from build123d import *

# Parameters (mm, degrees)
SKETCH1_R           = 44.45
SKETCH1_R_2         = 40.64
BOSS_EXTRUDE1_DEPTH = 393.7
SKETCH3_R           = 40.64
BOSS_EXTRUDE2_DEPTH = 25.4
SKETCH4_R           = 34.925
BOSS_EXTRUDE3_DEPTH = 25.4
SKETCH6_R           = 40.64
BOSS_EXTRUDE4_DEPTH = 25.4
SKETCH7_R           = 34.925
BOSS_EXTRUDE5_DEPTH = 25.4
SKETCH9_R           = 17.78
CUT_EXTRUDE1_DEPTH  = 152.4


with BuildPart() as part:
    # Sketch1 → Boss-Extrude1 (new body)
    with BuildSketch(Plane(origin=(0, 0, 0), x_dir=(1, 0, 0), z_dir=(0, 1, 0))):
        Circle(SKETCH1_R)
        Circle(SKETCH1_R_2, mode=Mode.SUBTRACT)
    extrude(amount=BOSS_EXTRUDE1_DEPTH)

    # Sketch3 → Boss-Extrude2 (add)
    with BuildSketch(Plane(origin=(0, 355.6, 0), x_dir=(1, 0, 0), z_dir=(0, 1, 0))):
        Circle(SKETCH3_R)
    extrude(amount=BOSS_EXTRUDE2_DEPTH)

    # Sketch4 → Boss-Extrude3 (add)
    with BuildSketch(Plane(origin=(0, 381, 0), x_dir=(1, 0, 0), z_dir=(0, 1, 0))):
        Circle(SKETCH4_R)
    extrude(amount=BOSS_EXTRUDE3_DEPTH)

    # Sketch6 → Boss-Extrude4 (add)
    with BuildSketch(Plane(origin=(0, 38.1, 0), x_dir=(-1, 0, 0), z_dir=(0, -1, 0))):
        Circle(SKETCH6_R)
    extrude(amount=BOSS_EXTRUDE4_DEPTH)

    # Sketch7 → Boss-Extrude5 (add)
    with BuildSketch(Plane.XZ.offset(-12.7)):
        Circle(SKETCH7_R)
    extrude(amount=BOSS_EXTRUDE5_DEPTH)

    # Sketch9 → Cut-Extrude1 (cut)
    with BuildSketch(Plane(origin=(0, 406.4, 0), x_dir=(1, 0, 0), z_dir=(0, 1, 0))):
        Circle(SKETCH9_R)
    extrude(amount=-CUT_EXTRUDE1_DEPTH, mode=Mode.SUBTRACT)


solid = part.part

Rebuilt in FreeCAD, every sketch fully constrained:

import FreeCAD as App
import Part
import Sketcher

V = App.Vector
Q = App.Units.Quantity

doc = App.newDocument("Part")
body = doc.addObject("PartDesign::Body", "Body")

# Sketch on XZ plane
sketch1 = doc.addObject("Sketcher::SketchObject", "Sketch")
body.addObject(sketch1)
sketch1.AttachmentSupport = (doc.XZ_Plane, [""])
sketch1.MapMode = "FlatFace"
sketch1.addGeometry([
    Part.Circle(V(0, 0, 0), V(0, 0, 1), 44),
    Part.Circle(V(0, 0, 0), V(0, 0, 1), 41),
], False)
sketch1.addConstraint([
    Sketcher.Constraint("Coincident", 0, 3, -1, 1),
    Sketcher.Constraint("Coincident", 1, 3, -1, 1),
    Sketcher.Constraint("Diameter", 0, Q("3.5 in")),
    Sketcher.Constraint("Diameter", 1, Q("3.2 in")),
])
pad1 = doc.addObject("PartDesign::Pad", "Pad")
body.addObject(pad1)
pad1.Profile = sketch1
pad1.Length = Q("15.5 in")
pad1.Reversed = True

# Sketch on XZ plane
sketch2 = doc.addObject("Sketcher::SketchObject", "Sketch001")
body.addObject(sketch2)
sketch2.AttachmentSupport = (doc.XZ_Plane, [""])
sketch2.MapMode = "FlatFace"
sketch2.AttachmentOffset = App.Placement(V(0, 0, -14 * 25.4), App.Rotation())
sketch2.addGeometry(Part.Circle(V(0, 0, 0), V(0, 0, 1), 41), False)
sketch2.addConstraint([
    Sketcher.Constraint("Coincident", 0, 3, -1, 1),
    Sketcher.Constraint("Diameter", 0, Q("3.2 in")),
])
pad2 = doc.addObject("PartDesign::Pad", "Pad001")
body.addObject(pad2)
pad2.Profile = sketch2
pad2.Length = Q("1 in")
pad2.Reversed = True

# Sketch on XZ plane
sketch3 = doc.addObject("Sketcher::SketchObject", "Sketch002")
body.addObject(sketch3)
sketch3.AttachmentSupport = (doc.XZ_Plane, [""])
sketch3.MapMode = "FlatFace"
sketch3.AttachmentOffset = App.Placement(V(0, 0, -15 * 25.4), App.Rotation())
sketch3.addGeometry(Part.Circle(V(0, 0, 0), V(0, 0, 1), 35), False)
sketch3.addConstraint([
    Sketcher.Constraint("Coincident", 0, 3, -1, 1),
    Sketcher.Constraint("Diameter", 0, Q("2.75 in")),
])
pad3 = doc.addObject("PartDesign::Pad", "Pad002")
body.addObject(pad3)
pad3.Profile = sketch3
pad3.Length = Q("1 in")
pad3.Reversed = True

# Sketch on XZ plane
sketch4 = doc.addObject("Sketcher::SketchObject", "Sketch003")
body.addObject(sketch4)
sketch4.AttachmentSupport = (doc.XZ_Plane, [""])
sketch4.MapMode = "FlatFace"
sketch4.AttachmentOffset = App.Placement(V(0, 0, -1.5 * 25.4), App.Rotation())
sketch4.addGeometry(Part.Circle(V(0, 0, 0), V(0, 0, 1), 41), False)
sketch4.addConstraint([
    Sketcher.Constraint("Coincident", 0, 3, -1, 1),
    Sketcher.Constraint("Diameter", 0, Q("3.2 in")),
])
pad4 = doc.addObject("PartDesign::Pad", "Pad003")
body.addObject(pad4)
pad4.Profile = sketch4
pad4.Length = Q("1 in")

# Sketch on XZ plane
sketch5 = doc.addObject("Sketcher::SketchObject", "Sketch004")
body.addObject(sketch5)
sketch5.AttachmentSupport = (doc.XZ_Plane, [""])
sketch5.MapMode = "FlatFace"
sketch5.AttachmentOffset = App.Placement(V(0, 0, -0.5 * 25.4), App.Rotation())
sketch5.addGeometry(Part.Circle(V(0, 0, 0), V(0, 0, 1), 35), False)
sketch5.addConstraint([
    Sketcher.Constraint("Coincident", 0, 3, -1, 1),
    Sketcher.Constraint("Diameter", 0, Q("2.75 in")),
])
pad5 = doc.addObject("PartDesign::Pad", "Pad004")
body.addObject(pad5)
pad5.Profile = sketch5
pad5.Length = Q("1 in")

# Sketch on XZ plane
sketch6 = doc.addObject("Sketcher::SketchObject", "Sketch005")
body.addObject(sketch6)
sketch6.AttachmentSupport = (doc.XZ_Plane, [""])
sketch6.MapMode = "FlatFace"
sketch6.AttachmentOffset = App.Placement(V(0, 0, -16 * 25.4), App.Rotation())
sketch6.addGeometry(Part.Circle(V(0, 0, 0), V(0, 0, 1), 18), False)
sketch6.addConstraint([
    Sketcher.Constraint("Coincident", 0, 3, -1, 1),
    Sketcher.Constraint("Diameter", 0, Q("1.4 in")),
])
pocket1 = doc.addObject("PartDesign::Pocket", "Pocket")
body.addObject(pocket1)
pocket1.Profile = sketch6
pocket1.Length = Q("6 in")
pocket1.Reversed = True

doc.recompute()
